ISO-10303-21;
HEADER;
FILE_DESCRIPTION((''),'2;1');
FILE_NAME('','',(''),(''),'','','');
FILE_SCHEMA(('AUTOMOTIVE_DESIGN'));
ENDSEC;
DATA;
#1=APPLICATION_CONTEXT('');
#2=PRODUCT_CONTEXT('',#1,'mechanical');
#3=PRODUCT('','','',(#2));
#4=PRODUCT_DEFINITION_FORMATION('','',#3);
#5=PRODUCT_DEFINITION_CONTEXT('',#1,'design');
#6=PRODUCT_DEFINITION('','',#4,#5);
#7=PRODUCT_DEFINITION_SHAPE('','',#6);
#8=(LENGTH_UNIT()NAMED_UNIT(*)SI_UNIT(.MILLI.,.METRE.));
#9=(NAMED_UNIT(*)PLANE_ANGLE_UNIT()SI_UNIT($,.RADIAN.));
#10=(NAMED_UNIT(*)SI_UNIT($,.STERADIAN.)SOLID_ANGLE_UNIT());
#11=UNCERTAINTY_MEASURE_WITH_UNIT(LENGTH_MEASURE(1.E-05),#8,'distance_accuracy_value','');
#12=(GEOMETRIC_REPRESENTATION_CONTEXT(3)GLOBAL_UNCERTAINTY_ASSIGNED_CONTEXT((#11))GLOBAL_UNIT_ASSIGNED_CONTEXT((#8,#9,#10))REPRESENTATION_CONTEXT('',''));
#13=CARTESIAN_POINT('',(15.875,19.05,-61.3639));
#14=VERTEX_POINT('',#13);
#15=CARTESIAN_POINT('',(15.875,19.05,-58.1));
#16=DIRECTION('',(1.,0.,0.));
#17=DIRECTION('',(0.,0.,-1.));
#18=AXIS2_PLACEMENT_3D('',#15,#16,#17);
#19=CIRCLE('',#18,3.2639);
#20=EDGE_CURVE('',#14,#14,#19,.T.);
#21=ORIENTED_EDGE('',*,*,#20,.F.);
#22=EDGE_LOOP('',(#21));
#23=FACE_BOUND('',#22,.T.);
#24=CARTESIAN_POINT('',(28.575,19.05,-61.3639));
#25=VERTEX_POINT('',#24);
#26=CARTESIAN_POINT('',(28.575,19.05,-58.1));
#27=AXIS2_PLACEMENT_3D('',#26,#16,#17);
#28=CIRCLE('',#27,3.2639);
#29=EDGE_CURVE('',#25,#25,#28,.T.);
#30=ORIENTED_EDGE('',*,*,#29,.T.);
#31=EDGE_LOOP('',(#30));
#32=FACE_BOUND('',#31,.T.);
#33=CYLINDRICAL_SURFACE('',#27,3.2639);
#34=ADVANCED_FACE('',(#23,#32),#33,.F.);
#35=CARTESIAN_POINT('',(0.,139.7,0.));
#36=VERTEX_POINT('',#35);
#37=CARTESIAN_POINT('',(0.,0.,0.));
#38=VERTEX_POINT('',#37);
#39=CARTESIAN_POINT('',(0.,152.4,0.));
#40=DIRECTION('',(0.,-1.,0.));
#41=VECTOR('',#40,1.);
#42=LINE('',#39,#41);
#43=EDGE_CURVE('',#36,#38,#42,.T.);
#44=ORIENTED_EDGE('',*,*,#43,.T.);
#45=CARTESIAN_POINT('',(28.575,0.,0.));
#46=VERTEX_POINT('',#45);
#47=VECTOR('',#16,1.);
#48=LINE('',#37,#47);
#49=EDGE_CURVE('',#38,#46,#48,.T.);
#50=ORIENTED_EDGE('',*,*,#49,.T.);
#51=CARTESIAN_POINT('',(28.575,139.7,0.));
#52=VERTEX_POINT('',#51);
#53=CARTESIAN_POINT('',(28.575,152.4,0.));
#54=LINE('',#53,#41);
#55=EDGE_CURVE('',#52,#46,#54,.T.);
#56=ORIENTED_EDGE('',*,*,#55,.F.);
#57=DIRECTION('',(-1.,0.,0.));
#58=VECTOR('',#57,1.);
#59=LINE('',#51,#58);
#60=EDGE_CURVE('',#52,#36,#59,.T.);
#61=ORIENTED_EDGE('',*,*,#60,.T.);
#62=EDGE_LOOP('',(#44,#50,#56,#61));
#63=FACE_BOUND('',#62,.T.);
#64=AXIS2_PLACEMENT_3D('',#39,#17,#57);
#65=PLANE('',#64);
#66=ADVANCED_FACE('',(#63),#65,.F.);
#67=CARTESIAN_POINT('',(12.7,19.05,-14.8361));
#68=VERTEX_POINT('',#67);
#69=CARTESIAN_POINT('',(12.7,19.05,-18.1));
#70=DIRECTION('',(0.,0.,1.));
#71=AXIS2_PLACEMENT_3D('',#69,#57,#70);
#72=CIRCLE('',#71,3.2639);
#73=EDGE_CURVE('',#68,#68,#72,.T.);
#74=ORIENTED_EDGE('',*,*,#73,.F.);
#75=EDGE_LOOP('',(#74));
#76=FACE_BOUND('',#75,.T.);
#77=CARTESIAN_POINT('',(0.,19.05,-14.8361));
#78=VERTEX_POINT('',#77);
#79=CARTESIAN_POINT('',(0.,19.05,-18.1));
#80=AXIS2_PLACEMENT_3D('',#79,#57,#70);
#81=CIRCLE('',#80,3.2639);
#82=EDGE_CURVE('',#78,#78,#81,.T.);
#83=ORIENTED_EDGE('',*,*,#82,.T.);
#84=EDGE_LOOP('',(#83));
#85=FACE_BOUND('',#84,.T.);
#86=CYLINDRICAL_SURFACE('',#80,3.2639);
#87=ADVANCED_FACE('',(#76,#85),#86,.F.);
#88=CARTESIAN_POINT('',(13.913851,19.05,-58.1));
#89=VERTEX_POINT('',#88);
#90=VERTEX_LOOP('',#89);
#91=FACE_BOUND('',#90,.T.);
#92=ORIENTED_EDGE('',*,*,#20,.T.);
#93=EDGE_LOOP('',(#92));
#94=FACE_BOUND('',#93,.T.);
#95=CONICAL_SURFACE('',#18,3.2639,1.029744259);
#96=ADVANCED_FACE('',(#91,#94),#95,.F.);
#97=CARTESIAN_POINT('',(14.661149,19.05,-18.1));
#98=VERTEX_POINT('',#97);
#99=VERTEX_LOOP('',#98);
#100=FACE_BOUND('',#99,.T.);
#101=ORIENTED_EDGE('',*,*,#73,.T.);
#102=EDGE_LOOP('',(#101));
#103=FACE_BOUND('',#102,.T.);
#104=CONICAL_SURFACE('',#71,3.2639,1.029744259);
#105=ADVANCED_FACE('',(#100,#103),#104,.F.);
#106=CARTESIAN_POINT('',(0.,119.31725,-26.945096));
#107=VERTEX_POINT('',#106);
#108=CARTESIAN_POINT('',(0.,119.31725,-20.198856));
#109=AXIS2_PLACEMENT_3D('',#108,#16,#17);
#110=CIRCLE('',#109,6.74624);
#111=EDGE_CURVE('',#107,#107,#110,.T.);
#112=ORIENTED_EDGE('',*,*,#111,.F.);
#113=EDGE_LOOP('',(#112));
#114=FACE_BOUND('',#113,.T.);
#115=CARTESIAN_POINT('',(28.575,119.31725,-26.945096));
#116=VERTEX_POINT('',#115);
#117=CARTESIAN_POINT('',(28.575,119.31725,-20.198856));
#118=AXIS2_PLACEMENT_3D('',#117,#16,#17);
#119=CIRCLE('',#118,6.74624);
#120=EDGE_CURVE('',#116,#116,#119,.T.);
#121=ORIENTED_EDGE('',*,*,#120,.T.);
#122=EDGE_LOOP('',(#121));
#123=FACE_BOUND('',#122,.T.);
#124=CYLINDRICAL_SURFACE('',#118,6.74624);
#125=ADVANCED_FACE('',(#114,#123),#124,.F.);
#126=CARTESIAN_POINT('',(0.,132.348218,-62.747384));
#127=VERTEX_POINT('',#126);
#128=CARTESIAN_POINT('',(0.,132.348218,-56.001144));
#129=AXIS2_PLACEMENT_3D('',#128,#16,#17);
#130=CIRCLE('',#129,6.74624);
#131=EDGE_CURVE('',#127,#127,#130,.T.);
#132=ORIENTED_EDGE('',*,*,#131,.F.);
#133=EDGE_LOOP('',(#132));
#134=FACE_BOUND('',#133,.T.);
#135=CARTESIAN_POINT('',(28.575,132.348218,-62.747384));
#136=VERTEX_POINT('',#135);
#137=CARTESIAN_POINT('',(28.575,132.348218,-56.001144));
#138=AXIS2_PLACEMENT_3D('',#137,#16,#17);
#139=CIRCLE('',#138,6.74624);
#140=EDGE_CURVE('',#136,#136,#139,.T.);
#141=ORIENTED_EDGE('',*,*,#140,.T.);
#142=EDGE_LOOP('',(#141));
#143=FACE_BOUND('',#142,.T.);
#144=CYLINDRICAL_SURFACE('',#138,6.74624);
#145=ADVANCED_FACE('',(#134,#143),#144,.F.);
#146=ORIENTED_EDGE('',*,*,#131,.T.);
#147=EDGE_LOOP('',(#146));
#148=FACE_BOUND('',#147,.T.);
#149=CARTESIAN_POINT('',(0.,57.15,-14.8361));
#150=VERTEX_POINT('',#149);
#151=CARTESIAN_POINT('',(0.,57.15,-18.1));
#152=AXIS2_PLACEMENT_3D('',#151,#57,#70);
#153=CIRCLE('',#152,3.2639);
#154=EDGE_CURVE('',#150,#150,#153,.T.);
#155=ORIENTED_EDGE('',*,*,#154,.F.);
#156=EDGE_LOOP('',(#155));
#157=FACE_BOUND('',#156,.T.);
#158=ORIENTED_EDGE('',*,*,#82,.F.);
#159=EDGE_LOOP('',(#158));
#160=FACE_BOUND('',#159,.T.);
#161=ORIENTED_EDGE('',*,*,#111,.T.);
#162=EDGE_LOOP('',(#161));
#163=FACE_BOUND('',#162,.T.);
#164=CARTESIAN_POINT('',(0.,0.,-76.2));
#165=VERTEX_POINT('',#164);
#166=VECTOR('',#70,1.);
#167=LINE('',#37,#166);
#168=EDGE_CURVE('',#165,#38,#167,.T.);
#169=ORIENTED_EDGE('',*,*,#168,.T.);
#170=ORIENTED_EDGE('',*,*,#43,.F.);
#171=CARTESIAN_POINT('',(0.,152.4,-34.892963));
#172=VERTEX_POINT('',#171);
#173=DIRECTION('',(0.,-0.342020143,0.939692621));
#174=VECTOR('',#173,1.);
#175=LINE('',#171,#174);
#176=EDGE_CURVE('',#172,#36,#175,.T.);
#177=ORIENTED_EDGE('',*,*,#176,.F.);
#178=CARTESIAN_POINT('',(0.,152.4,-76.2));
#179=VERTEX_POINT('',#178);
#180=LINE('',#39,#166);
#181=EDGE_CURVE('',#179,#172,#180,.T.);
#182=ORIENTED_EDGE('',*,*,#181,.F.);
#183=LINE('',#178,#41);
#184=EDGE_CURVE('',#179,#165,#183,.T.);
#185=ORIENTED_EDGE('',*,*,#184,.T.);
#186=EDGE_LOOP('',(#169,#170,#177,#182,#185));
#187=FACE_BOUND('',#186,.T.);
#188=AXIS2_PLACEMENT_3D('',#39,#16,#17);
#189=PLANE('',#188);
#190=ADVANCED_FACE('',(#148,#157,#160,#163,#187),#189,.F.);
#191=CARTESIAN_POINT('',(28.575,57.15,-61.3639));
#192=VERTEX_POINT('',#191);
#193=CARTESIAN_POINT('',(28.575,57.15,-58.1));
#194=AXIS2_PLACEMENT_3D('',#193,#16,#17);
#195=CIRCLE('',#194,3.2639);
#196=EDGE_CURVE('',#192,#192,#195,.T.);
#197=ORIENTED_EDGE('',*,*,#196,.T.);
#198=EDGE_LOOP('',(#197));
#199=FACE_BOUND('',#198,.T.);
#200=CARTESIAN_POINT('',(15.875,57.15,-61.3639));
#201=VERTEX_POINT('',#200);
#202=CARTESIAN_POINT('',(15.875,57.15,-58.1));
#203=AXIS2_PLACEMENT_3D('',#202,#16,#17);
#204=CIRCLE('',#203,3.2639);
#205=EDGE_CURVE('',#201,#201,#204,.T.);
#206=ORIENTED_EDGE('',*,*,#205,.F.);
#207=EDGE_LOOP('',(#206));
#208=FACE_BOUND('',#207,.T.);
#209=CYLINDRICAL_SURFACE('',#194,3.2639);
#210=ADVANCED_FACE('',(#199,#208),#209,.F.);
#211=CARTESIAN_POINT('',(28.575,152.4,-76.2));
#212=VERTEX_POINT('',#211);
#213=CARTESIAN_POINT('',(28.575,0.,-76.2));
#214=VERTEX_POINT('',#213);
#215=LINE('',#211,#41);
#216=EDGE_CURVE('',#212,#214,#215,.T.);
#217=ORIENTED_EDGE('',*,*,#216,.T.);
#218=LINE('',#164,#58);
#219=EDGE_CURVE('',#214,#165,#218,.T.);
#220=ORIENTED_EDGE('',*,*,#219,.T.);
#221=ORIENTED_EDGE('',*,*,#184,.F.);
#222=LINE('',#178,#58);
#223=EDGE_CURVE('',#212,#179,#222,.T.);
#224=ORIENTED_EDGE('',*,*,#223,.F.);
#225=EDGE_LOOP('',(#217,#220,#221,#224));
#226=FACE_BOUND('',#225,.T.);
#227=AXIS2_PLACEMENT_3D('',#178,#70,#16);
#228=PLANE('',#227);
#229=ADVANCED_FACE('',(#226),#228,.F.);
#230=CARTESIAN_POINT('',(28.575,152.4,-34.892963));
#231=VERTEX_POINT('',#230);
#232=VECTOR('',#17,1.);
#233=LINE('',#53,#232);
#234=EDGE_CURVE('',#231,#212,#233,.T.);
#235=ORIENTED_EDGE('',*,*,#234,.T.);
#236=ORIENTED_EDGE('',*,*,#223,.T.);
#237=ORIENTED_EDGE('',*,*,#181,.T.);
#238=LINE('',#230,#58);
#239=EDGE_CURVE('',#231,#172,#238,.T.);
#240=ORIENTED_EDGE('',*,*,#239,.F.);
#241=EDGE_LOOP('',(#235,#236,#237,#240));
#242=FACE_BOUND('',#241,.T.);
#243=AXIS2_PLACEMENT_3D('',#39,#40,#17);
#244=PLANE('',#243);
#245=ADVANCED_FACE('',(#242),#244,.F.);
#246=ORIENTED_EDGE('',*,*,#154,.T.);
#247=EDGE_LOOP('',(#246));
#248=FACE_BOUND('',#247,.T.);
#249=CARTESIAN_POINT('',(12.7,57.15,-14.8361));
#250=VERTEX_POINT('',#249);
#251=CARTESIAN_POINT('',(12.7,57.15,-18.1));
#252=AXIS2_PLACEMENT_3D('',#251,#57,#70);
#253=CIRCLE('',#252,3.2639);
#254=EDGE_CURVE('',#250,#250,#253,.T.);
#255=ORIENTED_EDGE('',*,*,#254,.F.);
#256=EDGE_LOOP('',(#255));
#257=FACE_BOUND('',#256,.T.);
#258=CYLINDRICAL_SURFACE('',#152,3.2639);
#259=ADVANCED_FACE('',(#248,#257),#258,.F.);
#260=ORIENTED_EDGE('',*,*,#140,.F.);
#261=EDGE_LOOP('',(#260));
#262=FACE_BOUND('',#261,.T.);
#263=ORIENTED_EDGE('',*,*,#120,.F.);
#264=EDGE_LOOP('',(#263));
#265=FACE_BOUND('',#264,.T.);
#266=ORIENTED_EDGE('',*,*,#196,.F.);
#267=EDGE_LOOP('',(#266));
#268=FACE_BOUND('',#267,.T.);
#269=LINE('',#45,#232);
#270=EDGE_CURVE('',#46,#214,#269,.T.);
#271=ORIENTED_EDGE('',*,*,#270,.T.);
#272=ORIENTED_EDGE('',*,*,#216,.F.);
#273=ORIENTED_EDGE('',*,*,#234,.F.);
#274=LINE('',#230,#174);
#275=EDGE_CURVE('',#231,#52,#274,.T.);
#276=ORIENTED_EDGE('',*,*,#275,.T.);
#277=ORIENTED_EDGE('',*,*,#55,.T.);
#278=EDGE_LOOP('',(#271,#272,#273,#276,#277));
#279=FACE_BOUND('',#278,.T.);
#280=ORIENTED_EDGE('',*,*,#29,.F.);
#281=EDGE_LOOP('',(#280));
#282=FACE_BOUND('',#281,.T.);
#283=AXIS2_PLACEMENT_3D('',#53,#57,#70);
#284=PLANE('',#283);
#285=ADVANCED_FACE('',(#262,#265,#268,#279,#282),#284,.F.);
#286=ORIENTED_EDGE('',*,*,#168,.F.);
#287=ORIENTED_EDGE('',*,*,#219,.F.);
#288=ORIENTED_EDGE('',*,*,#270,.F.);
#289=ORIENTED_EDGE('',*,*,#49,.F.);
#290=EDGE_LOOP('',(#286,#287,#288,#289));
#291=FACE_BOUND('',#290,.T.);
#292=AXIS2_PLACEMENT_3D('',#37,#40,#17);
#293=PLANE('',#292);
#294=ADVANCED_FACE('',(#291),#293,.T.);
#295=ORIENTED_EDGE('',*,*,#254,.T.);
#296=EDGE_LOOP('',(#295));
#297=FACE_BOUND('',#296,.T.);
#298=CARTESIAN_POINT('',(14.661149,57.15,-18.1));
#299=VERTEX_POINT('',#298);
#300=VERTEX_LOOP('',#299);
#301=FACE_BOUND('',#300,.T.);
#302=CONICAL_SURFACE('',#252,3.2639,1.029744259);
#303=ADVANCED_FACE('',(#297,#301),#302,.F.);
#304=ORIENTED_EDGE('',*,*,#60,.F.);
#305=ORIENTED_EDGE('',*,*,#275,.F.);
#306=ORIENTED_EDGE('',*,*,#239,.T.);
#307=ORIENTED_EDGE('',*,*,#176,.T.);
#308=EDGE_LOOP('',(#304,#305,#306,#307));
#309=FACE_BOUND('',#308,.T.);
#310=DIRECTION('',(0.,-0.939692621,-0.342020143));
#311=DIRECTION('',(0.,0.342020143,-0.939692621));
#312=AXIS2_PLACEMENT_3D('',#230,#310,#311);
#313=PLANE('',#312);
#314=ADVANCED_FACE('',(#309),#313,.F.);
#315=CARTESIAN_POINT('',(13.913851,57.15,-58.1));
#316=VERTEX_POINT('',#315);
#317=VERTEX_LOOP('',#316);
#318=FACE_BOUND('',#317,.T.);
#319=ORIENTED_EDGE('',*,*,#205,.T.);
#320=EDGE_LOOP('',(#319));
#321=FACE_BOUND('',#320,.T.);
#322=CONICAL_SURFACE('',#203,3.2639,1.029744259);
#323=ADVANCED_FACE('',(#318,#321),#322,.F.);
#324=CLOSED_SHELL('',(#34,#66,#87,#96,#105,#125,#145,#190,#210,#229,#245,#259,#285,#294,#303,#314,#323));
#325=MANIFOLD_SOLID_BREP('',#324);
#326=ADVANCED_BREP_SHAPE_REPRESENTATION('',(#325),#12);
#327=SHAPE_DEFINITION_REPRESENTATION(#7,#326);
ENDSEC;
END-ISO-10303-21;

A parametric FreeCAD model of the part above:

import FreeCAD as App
import Part
import Sketcher
Q = App.Units.Quantity


def add_polygon(sketch, points):
    """Adds a closed chain of lines whose ends are joined by coincident constraints."""
    first, n = sketch.GeometryCount, len(points)
    for a, b in zip(points, points[1:] + points[:1]):
        sketch.addGeometry(Part.LineSegment(App.Vector(*a, 0), App.Vector(*b, 0)), False)
    for i in range(n):
        sketch.addConstraint(Sketcher.Constraint("Coincident", first + i, 2, first + (i + 1) % n, 1))

doc = App.newDocument("Part")
params = doc.addObject("Spreadsheet::Sheet", "Params")
for row, (alias, value) in enumerate([
    ("sketch1_height", "3 in"),
    ("sketch1_width", "1.125 in"),
    ("pad1_length", "6 in"),
    ("hole_diameter", "0.5312 in"),
    ("sketch3_diameter", "0.257 in"),
    ("hole2_diameter", "0.257 in"),
    ("hole2_depth", "0.5 in"),
    ("sketch4_diameter", "0.257 in"),
    ("hole3_diameter", "0.257 in"),
    ("hole3_depth", "0.5 in"),
    ("sketch5_width", "0.5 in"),
], start=1):
    params.set(f"A{row}", alias)
    params.set(f"B{row}", "=" + value)
    params.setAlias(f"B{row}", alias)

body = doc.addObject("PartDesign::Body", "Body")

# Sketch on XZ plane
sketch1 = doc.addObject("Sketcher::SketchObject", "Sketch")
body.addObject(sketch1)
sketch1.AttachmentSupport = (doc.XZ_Plane, [""])
sketch1.MapMode = "FlatFace"
add_polygon(sketch1, [(0, -76), (0, 0), (29, 0), (29, -76)])  # lines 0-3
sketch1.addConstraint(Sketcher.Constraint("Vertical", 0))
sketch1.addConstraint(Sketcher.Constraint("Horizontal", 1))
sketch1.addConstraint(Sketcher.Constraint("Vertical", 2))
sketch1.addConstraint(Sketcher.Constraint("Horizontal", 3))
sketch1.addConstraint(Sketcher.Constraint("Coincident", 0, 2, -1, 1))
sketch1.addConstraint(Sketcher.Constraint("DistanceY", 0, 1, 0, 2, Q("3 in")))
sketch1.addConstraint(Sketcher.Constraint("DistanceX", 1, 1, 1, 2, Q("1.125 in")))
sketch1.setExpression("Constraints[9]", "Params.sketch1_height")
sketch1.setExpression("Constraints[10]", "Params.sketch1_width")
pad1 = doc.addObject("PartDesign::Pad", "Pad")
body.addObject(pad1)
pad1.Profile = sketch1
pad1.setExpression("Length", "Params.pad1_length")
pad1.Reversed = True

# Sketch on YZ plane
sketch2 = doc.addObject("Sketcher::SketchObject", "Sketch001")
body.addObject(sketch2)
sketch2.AttachmentSupport = (doc.YZ_Plane, [""])
sketch2.MapMode = "FlatFace"
sketch2.AttachmentOffset = App.Placement(App.Vector(0, 0, 1.125 * 25.4), App.Rotation())
sketch2.addGeometry(Part.Circle(App.Vector(119, -20, 0), App.Vector(0, 0, 1), 7), False)
sketch2.addGeometry(Part.Circle(App.Vector(132, -56, 0), App.Vector(0, 0, 1), 7), False)
sketch2.addConstraint(Sketcher.Constraint("Equal", 0, 1))
sketch2.addConstraint(Sketcher.Constraint("Diameter", 0, Q("0.5312 in")))
sketch2.addConstraint(Sketcher.Constraint("DistanceX", -1, 1, 0, 3, Q("119.31725 mm")))
sketch2.addConstraint(Sketcher.Constraint("DistanceY", 1, 3, 0, 3, Q("35.802289 mm")))
sketch2.addConstraint(Sketcher.Constraint("DistanceY", 0, 3, -1, 1, Q("20.198856 mm")))
sketch2.addConstraint(Sketcher.Constraint("DistanceX", -1, 1, 1, 3, Q("132.348218 mm")))
doc.recompute()
hole = doc.addObject("PartDesign::Hole", "Hole")
body.addObject(hole)
hole.Profile = sketch2
hole.ThreadType = "None"
hole.setExpression("Diameter", "Params.hole_diameter")
hole.DepthType = "ThroughAll"

# Sketch on YZ plane
sketch3 = doc.addObject("Sketcher::SketchObject", "Sketch002")
body.addObject(sketch3)
sketch3.AttachmentSupport = (doc.YZ_Plane, [""])
sketch3.MapMode = "FlatFace"
sketch3.AttachmentOffset = App.Placement(App.Vector(0, 0, 1.125 * 25.4), App.Rotation())
sketch3.addGeometry(Part.Circle(App.Vector(57.1, -58.1, 0), App.Vector(0, 0, 1), 3.3), False)
sketch3.addGeometry(Part.Circle(App.Vector(19.1, -58.1, 0), App.Vector(0, 0, 1), 3.3), False)
sketch3.addConstraint(Sketcher.Constraint("Equal", 0, 1))
sketch3.addConstraint(Sketcher.Constraint("Horizontal", 0, 3, 1, 3))
sketch3.addConstraint(Sketcher.Constraint("Diameter", 0, Q("0.257 in")))
sketch3.addConstraint(Sketcher.Constraint("DistanceX", 1, 3, 0, 3, Q("1.5 in")))
sketch3.addConstraint(Sketcher.Constraint("DistanceX", -1, 1, 0, 3, Q("2.25 in")))
sketch3.addConstraint(Sketcher.Constraint("DistanceY", 0, 3, -1, 1, Q("58.1 mm")))
sketch3.setExpression("Constraints[2]", "Params.sketch3_diameter")
doc.recompute()
hole2 = doc.addObject("PartDesign::Hole", "Hole001")
body.addObject(hole2)
hole2.Profile = sketch3
hole2.ThreadType = "None"
hole2.setExpression("Diameter", "Params.hole2_diameter")
hole2.DepthType = "Dimension"
hole2.setExpression("Depth", "Params.hole2_depth")
hole2.DrillPoint = "Angled"
hole2.DrillPointAngle = 118

# Sketch on YZ plane
sketch4 = doc.addObject("Sketcher::SketchObject", "Sketch003")
body.addObject(sketch4)
sketch4.AttachmentSupport = (doc.YZ_Plane, [""])
sketch4.MapMode = "FlatFace"
sketch4.addGeometry(Part.Circle(App.Vector(57.1, -18.1, 0), App.Vector(0, 0, 1), 3.3), False)
sketch4.addGeometry(Part.Circle(App.Vector(19.1, -18.1, 0), App.Vector(0, 0, 1), 3.3), False)
sketch4.addConstraint(Sketcher.Constraint("Equal", 0, 1))
sketch4.addConstraint(Sketcher.Constraint("Horizontal", 0, 3, 1, 3))
sketch4.addConstraint(Sketcher.Constraint("Diameter", 0, Q("0.257 in")))
sketch4.addConstraint(Sketcher.Constraint("DistanceX", 1, 3, 0, 3, Q("1.5 in")))
sketch4.addConstraint(Sketcher.Constraint("DistanceX", -1, 1, 0, 3, Q("2.25 in")))
sketch4.addConstraint(Sketcher.Constraint("DistanceY", 0, 3, -1, 1, Q("18.1 mm")))
sketch4.setExpression("Constraints[2]", "Params.sketch4_diameter")
doc.recompute()
hole3 = doc.addObject("PartDesign::Hole", "Hole002")
body.addObject(hole3)
hole3.Profile = sketch4
hole3.ThreadType = "None"
hole3.setExpression("Diameter", "Params.hole3_diameter")
hole3.DepthType = "Dimension"
hole3.setExpression("Depth", "Params.hole3_depth")
hole3.DrillPoint = "Angled"
hole3.DrillPointAngle = 118
hole3.Reversed = True

# Sketch on YZ plane
sketch5 = doc.addObject("Sketcher::SketchObject", "Sketch004")
body.addObject(sketch5)
sketch5.AttachmentSupport = (doc.YZ_Plane, [""])
sketch5.MapMode = "FlatFace"
add_polygon(sketch5, [(152, -35), (140, 0), (152, 0)])  # lines 0-2
sketch5.addConstraint(Sketcher.Constraint("Horizontal", 1))
sketch5.addConstraint(Sketcher.Constraint("Vertical", 2))
sketch5.addConstraint(Sketcher.Constraint("PointOnObject", 0, 2, -1))
sketch5.addConstraint(Sketcher.Constraint("DistanceX", 1, 1, 1, 2, Q("0.5 in")))
sketch5.addConstraint(Sketcher.Constraint("DistanceX", -1, 1, 1, 2, Q("6 in")))
sketch5.addConstraint(Sketcher.Constraint("Angle", 0, Q("110 deg")))
sketch5.setExpression("Constraints[6]", "Params.sketch5_width")
pocket1 = doc.addObject("PartDesign::Pocket", "Pocket")
body.addObject(pocket1)
pocket1.Profile = sketch5
pocket1.Type = "ThroughAll"
pocket1.Reversed = True

doc.recompute()
